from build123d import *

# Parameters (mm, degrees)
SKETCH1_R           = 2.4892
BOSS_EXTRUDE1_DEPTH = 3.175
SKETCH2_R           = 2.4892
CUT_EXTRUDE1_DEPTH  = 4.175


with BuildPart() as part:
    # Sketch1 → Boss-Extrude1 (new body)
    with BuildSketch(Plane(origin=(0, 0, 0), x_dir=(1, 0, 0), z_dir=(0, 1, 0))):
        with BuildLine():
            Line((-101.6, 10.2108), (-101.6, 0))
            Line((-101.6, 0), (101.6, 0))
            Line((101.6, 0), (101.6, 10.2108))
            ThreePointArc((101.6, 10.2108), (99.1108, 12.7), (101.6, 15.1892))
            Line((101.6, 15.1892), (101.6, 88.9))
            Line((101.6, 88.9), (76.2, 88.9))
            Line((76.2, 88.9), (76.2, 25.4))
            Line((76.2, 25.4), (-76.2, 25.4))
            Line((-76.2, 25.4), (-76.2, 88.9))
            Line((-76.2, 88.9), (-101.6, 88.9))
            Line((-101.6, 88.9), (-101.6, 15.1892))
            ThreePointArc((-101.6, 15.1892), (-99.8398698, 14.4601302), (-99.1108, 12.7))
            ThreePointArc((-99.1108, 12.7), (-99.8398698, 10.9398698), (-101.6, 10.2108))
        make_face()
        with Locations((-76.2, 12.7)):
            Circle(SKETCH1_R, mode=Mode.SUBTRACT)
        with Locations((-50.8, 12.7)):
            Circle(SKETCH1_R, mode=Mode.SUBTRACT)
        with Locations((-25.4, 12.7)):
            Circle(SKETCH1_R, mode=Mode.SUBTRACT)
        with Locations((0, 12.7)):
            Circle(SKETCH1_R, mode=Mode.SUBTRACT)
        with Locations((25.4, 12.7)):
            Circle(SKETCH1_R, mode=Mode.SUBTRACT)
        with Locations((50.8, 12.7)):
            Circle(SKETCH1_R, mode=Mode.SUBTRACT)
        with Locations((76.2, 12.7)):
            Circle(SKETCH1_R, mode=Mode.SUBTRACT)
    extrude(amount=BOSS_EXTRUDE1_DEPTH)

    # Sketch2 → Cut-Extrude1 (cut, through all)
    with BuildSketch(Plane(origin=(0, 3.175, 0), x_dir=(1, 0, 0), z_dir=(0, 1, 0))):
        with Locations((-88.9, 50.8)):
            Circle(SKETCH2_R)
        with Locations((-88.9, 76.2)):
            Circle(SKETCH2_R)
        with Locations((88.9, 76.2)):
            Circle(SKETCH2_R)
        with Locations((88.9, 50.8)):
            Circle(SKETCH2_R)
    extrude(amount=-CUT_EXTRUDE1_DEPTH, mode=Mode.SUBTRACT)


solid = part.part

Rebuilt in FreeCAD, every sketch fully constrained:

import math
import FreeCAD as App
import Part
import Sketcher

V = App.Vector
Q = App.Units.Quantity

doc = App.newDocument("Part")
body = doc.addObject("PartDesign::Body", "Body")

sketch1 = body.newObject("Sketcher::SketchObject", "Sketch")
sketch1.AttachmentSupport = (doc.getObject("XZ_Plane"), [""])
sketch1.MapMode = "FlatFace"
sketch1.addGeometry([
    Part.LineSegment(V(-101.6, -10.2, 0), V(-101.6, 0, 0)),
    Part.LineSegment(V(-101.6, 0, 0), V(101.6, 0, 0)),
    Part.LineSegment(V(101.6, 0, 0), V(101.6, -10.2, 0)),
    Part.ArcOfCircle(Part.Circle(V(101.6, -12.7, 0), V(0, 0, 1), 2.5), math.radians(90), math.radians(270)),
    Part.LineSegment(V(101.6, -15.2, 0), V(101.6, -88.9, 0)),
    Part.LineSegment(V(101.6, -88.9, 0), V(76.2, -88.9, 0)),
    Part.LineSegment(V(76.2, -88.9, 0), V(76.2, -25.4, 0)),
    Part.LineSegment(V(76.2, -25.4, 0), V(-76.2, -25.4, 0)),
    Part.LineSegment(V(-76.2, -25.4, 0), V(-76.2, -88.9, 0)),
    Part.LineSegment(V(-76.2, -88.9, 0), V(-101.6, -88.9, 0)),
    Part.LineSegment(V(-101.6, -88.9, 0), V(-101.6, -15.2, 0)),
    Part.ArcOfCircle(Part.Circle(V(-101.6, -12.7, 0), V(0, 0, 1), 2.5), math.radians(-90), math.radians(0)),
    Part.ArcOfCircle(Part.Circle(V(-101.6, -12.7, 0), V(0, 0, 1), 2.5), math.radians(0), math.radians(90)),
    Part.Circle(V(-76.2, -12.7, 0), V(0, 0, 1), 2.5),
    Part.Circle(V(-50.8, -12.7, 0), V(0, 0, 1), 2.5),
    Part.Circle(V(-25.4, -12.7, 0), V(0, 0, 1), 2.5),
    Part.Circle(V(0, -12.7, 0), V(0, 0, 1), 2.5),
    Part.Circle(V(25.4, -12.7, 0), V(0, 0, 1), 2.5),
    Part.Circle(V(50.8, -12.7, 0), V(0, 0, 1), 2.5),
    Part.Circle(V(76.2, -12.7, 0), V(0, 0, 1), 2.5),
], False)
sketch1.addConstraint([
    Sketcher.Constraint("Coincident", 0, 2, 1, 1),
    Sketcher.Constraint("Coincident", 1, 2, 2, 1),
    Sketcher.Constraint("Coincident", 2, 2, 3, 1),
    Sketcher.Constraint("Coincident", 3, 2, 4, 1),
    Sketcher.Constraint("Coincident", 4, 2, 5, 1),
    Sketcher.Constraint("Coincident", 5, 2, 6, 1),
    Sketcher.Constraint("Coincident", 6, 2, 7, 1),
    Sketcher.Constraint("Coincident", 7, 2, 8, 1),
    Sketcher.Constraint("Coincident", 8, 2, 9, 1),
    Sketcher.Constraint("Coincident", 9, 2, 10, 1),
    Sketcher.Constraint("Coincident", 10, 2, 11, 1),
    Sketcher.Constraint("Tangent", 11, 2, 12, 1),
    Sketcher.Constraint("Coincident", 12, 2, 0, 1),
    Sketcher.Constraint("Vertical", 0),
    Sketcher.Constraint("Horizontal", 1),
    Sketcher.Constraint("Vertical", 2),
    Sketcher.Constraint("Vertical", 4),
    Sketcher.Constraint("Horizontal", 5),
    Sketcher.Constraint("Vertical", 6),
    Sketcher.Constraint("Horizontal", 7),
    Sketcher.Constraint("Vertical", 8),
    Sketcher.Constraint("Horizontal", 9),
    Sketcher.Constraint("Vertical", 10),
    Sketcher.Constraint("Equal", 3, 11),
    Sketcher.Constraint("Equal", 11, 12),
    Sketcher.Constraint("Equal", 12, 13),
    Sketcher.Constraint("Equal", 13, 14),
    Sketcher.Constraint("Equal", 14, 15),
    Sketcher.Constraint("Equal", 15, 16),
    Sketcher.Constraint("Equal", 16, 17),
    Sketcher.Constraint("Equal", 17, 18),
    Sketcher.Constraint("Equal", 18, 19),
    Sketcher.Constraint("Symmetric", 0, 2, 1, 2, -1, 1),
    Sketcher.Constraint("Symmetric", 3, 3, 11, 3, -2),
    Sketcher.Constraint("Symmetric", 15, 3, 17, 3, -2),
    Sketcher.Constraint("Symmetric", 14, 3, 18, 3, -2),
    Sketcher.Constraint("Symmetric", 13, 3, 19, 3, -2),
    Sketcher.Constraint("Symmetric", 5, 2, 8, 2, -2),
    Sketcher.Constraint("PointOnObject", 16, 3, -2),
    Sketcher.Constraint("Horizontal", 12, 3, 13, 3),
    Sketcher.Constraint("Horizontal", 13, 3, 14, 3),
    Sketcher.Constraint("Horizontal", 14, 3, 15, 3),
    Sketcher.Constraint("Horizontal", 15, 3, 16, 3),
    Sketcher.Constraint("Horizontal", 19, 3, 11, 2),
    Sketcher.Constraint("Vertical", 12, 3, 0, 2),
    Sketcher.Constraint("Vertical", 2, 2, 3, 2),
    Sketcher.Constraint("Vertical", 19, 3, 5, 2),
    Sketcher.Constraint("Vertical", 0, 2, 9, 2),
    Sketcher.Constraint("DistanceX", 1, 1, 1, 2, Q("8 in")),
    Sketcher.Constraint("DistanceX", 5, 2, 5, 1, Q("1 in")),
    Sketcher.Constraint("Diameter", 13, Q("0.196 in")),
    Sketcher.Constraint("DistanceY", 6, 1, 6, 2, Q("2.5 in")),
    Sketcher.Constraint("DistanceX", 14, 3, -1, 1, Q("2 in")),
    Sketcher.Constraint("DistanceX", 15, 3, -1, 1, Q("1 in")),
    Sketcher.Constraint("DistanceY", 6, 2, -1, 1, Q("1 in")),
    Sketcher.Constraint("DistanceY", 4, 2, 3, 3, Q("3 in")),
])
pad1 = body.newObject("PartDesign::Pad", "Pad")
pad1.Profile = sketch1
pad1.Length = Q("0.125 in")
pad1.Reversed = True

sketch2 = body.newObject("Sketcher::SketchObject", "Sketch001")
sketch2.AttachmentSupport = (doc.getObject("XZ_Plane"), [""])
sketch2.MapMode = "FlatFace"
sketch2.AttachmentOffset = App.Placement(V(0, 0, -0.125 * 25.4), App.Rotation())
sketch2.addGeometry([
    Part.Circle(V(-88.9, -50.8, 0), V(0, 0, 1), 2.5),
    Part.Circle(V(-88.9, -76.2, 0), V(0, 0, 1), 2.5),
    Part.Circle(V(88.9, -76.2, 0), V(0, 0, 1), 2.5),
    Part.Circle(V(88.9, -50.8, 0), V(0, 0, 1), 2.5),
], False)
sketch2.addConstraint([
    Sketcher.Constraint("Equal", 0, 1),
    Sketcher.Constraint("Equal", 1, 2),
    Sketcher.Constraint("Equal", 2, 3),
    Sketcher.Constraint("Symmetric", 1, 3, 2, 3, -2),
    Sketcher.Constraint("Symmetric", 0, 3, 3, 3, -2),
    Sketcher.Constraint("Vertical", 0, 3, 1, 3),
    Sketcher.Constraint("Diameter", 0, Q("0.196 in")),
    Sketcher.Constraint("DistanceY", 0, 3, -1, 1, Q("2 in")),
    Sketcher.Constraint("DistanceY", 1, 3, -1, 1, Q("3 in")),
    Sketcher.Constraint("DistanceX", 1, 3, 2, 3, Q("7 in")),
])
pocket1 = body.newObject("PartDesign::Pocket", "Pocket")
pocket1.Profile = sketch2
pocket1.Type = "ThroughAll"
pocket1.Reversed = True

doc.recompute()
